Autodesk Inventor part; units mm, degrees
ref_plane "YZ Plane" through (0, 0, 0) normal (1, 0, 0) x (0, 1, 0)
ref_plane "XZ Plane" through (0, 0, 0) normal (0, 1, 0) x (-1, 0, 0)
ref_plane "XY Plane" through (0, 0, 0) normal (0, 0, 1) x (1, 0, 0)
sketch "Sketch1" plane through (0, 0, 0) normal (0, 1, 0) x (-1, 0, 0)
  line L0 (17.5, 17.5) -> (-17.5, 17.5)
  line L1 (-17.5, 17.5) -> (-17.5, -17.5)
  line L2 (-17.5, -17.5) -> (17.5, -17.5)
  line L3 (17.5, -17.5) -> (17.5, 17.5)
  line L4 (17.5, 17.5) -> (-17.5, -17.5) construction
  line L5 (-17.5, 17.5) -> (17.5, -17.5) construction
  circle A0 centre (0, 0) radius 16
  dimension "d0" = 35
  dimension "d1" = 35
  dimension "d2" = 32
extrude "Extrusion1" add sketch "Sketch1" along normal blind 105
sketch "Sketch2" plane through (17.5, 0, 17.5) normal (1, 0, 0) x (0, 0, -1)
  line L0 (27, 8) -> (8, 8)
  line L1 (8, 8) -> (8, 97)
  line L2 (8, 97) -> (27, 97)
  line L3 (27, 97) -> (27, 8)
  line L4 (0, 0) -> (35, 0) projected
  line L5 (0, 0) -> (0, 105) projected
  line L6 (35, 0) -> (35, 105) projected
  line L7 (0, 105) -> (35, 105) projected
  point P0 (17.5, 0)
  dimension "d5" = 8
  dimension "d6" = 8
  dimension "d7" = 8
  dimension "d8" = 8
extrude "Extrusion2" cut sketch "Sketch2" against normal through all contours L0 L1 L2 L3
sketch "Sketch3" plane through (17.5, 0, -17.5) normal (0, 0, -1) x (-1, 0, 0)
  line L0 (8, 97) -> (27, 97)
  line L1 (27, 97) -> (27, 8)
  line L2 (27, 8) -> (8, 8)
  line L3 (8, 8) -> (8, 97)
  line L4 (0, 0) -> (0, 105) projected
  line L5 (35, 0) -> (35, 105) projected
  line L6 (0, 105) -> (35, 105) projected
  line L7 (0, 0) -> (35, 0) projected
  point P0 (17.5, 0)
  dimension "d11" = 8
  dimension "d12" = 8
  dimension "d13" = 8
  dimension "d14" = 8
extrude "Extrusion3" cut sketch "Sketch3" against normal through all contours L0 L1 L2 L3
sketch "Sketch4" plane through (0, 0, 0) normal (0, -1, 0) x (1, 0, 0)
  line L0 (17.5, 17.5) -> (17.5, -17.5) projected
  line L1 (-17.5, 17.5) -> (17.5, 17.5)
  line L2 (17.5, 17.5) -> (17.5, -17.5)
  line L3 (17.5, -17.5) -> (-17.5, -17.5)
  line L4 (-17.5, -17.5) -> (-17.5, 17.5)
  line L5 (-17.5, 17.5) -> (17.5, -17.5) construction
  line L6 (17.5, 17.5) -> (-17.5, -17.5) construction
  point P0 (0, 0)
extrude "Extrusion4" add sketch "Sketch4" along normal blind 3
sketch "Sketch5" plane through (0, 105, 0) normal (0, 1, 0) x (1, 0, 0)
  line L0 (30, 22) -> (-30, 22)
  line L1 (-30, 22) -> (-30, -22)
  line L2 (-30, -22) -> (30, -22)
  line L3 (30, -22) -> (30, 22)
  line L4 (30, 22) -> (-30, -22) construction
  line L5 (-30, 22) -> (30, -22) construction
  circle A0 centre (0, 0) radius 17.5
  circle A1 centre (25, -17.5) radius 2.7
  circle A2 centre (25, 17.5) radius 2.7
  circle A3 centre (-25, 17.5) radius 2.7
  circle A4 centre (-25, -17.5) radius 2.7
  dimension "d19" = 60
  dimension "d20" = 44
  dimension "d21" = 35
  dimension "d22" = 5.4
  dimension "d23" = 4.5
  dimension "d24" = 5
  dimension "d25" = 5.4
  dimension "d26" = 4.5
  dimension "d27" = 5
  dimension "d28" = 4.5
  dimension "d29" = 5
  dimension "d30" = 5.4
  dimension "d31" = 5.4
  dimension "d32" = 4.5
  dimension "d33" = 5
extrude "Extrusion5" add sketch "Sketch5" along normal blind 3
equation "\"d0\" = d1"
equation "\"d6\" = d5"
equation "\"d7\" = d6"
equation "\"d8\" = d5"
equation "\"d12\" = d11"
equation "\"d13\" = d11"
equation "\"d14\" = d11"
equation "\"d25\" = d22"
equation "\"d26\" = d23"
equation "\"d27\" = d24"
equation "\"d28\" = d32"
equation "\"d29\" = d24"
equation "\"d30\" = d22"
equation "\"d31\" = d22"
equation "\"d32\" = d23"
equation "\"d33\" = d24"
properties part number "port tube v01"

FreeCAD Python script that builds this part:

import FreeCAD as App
import Part
import Sketcher

doc = App.newDocument("Part")
body = doc.addObject("PartDesign::Body", "Body")

sketch1 = body.newObject("Sketcher::SketchObject", "Sketch")
sketch1.AttachmentSupport = (doc.getObject("XZ_Plane"), [""])
sketch1.MapMode = "FlatFace"
sketch1.addGeometry([
    Part.LineSegment(App.Vector(-18, -18, 0), App.Vector(-18, 18, 0)),
    Part.LineSegment(App.Vector(-18, 18, 0), App.Vector(18, 18, 0)),
    Part.LineSegment(App.Vector(18, 18, 0), App.Vector(18, -18, 0)),
    Part.LineSegment(App.Vector(18, -18, 0), App.Vector(-18, -18, 0)),
    Part.Circle(App.Vector(0, 0, 0), App.Vector(0, 0, 1), 16),
], False)
sketch1.addConstraint([
    Sketcher.Constraint("Coincident", 0, 2, 1, 1),
    Sketcher.Constraint("Coincident", 1, 2, 2, 1),
    Sketcher.Constraint("Coincident", 2, 2, 3, 1),
    Sketcher.Constraint("Coincident", 3, 2, 0, 1),
    Sketcher.Constraint("Vertical", 0),
    Sketcher.Constraint("Horizontal", 1),
    Sketcher.Constraint("Vertical", 2),
    Sketcher.Constraint("Horizontal", 3),
    Sketcher.Constraint("Coincident", 4, 3, -1, 1),
    Sketcher.Constraint("Symmetric", 0, 2, 2, 2, -1, 1),
    Sketcher.Constraint("Equal", 3, 0),
    Sketcher.Constraint("Diameter", 4, 32.0),
    Sketcher.Constraint("DistanceX", 1, 1, 1, 2, 35.0),
])
pad1 = body.newObject("PartDesign::Pad", "Pad")
pad1.Profile = sketch1
pad1.Length = 105
pad1.Reversed = True

sketch2 = body.newObject("Sketcher::SketchObject", "Sketch001")
sketch2.AttachmentSupport = (doc.getObject("YZ_Plane"), [""])
sketch2.MapMode = "FlatFace"
sketch2.AttachmentOffset = App.Placement(App.Vector(0, 0, 17.5), App.Rotation())
sketch2.addGeometry([
    Part.LineSegment(App.Vector(8, 10, 0), App.Vector(8, -10, 0)),
    Part.LineSegment(App.Vector(8, -10, 0), App.Vector(97, -10, 0)),
    Part.LineSegment(App.Vector(97, -10, 0), App.Vector(97, 10, 0)),
    Part.LineSegment(App.Vector(97, 10, 0), App.Vector(8, 10, 0)),
], False)
sketch2.addConstraint([
    Sketcher.Constraint("Coincident", 0, 2, 1, 1),
    Sketcher.Constraint("Coincident", 1, 2, 2, 1),
    Sketcher.Constraint("Coincident", 2, 2, 3, 1),
    Sketcher.Constraint("Coincident", 3, 2, 0, 1),
    Sketcher.Constraint("Vertical", 0),
    Sketcher.Constraint("Horizontal", 1),
    Sketcher.Constraint("Vertical", 2),
    Sketcher.Constraint("Horizontal", 3),
    Sketcher.Constraint("DistanceX", -1, 1, 0, 2, 8.0),
    Sketcher.Constraint("DistanceX", 1, 1, 1, 2, 89.0),
    Sketcher.Constraint("DistanceY", 0, 2, 0, 1, 19.0),
    Sketcher.Constraint("DistanceY", 0, 2, -1, 1, 9.5),
])
pocket1 = body.newObject("PartDesign::Pocket", "Pocket")
pocket1.Profile = sketch2
pocket1.Type = "ThroughAll"

sketch3 = body.newObject("Sketcher::SketchObject", "Sketch002")
sketch3.AttachmentSupport = (doc.getObject("XY_Plane"), [""])
sketch3.MapMode = "FlatFace"
sketch3.AttachmentOffset = App.Placement(App.Vector(0, 0, -17.5), App.Rotation())
sketch3.addGeometry([
    Part.LineSegment(App.Vector(-10, 97, 0), App.Vector(10, 97, 0)),
    Part.LineSegment(App.Vector(10, 97, 0), App.Vector(10, 8, 0)),
    Part.LineSegment(App.Vector(10, 8, 0), App.Vector(-10, 8, 0)),
    Part.LineSegment(App.Vector(-10, 8, 0), App.Vector(-10, 97, 0)),
], False)
sketch3.addConstraint([
    Sketcher.Constraint("Coincident", 0, 2, 1, 1),
    Sketcher.Constraint("Coincident", 1, 2, 2, 1),
    Sketcher.Constraint("Coincident", 2, 2, 3, 1),
    Sketcher.Constraint("Coincident", 3, 2, 0, 1),
    Sketcher.Constraint("Horizontal", 0),
    Sketcher.Constraint("Vertical", 1),
    Sketcher.Constraint("Horizontal", 2),
    Sketcher.Constraint("Vertical", 3),
    Sketcher.Constraint("DistanceY", -1, 1, 1, 2, 8.0),
    Sketcher.Constraint("DistanceX", 0, 1, 0, 2, 19.0),
    Sketcher.Constraint("DistanceY", 1, 2, 1, 1, 89.0),
    Sketcher.Constraint("DistanceX", -1, 1, 0, 2, 9.5),
])
pocket2 = body.newObject("PartDesign::Pocket", "Pocket001")
pocket2.Profile = sketch3
pocket2.Type = "ThroughAll"
pocket2.Reversed = True

sketch4 = body.newObject("Sketcher::SketchObject", "Sketch003")
sketch4.AttachmentSupport = (doc.getObject("XZ_Plane"), [""])
sketch4.MapMode = "FlatFace"
sketch4.addGeometry([
    Part.LineSegment(App.Vector(18, -18, 0), App.Vector(18, 18, 0)),
    Part.LineSegment(App.Vector(18, 18, 0), App.Vector(-18, 18, 0)),
    Part.LineSegment(App.Vector(-18, 18, 0), App.Vector(-18, -18, 0)),
    Part.LineSegment(App.Vector(-18, -18, 0), App.Vector(18, -18, 0)),
], False)
sketch4.addConstraint([
    Sketcher.Constraint("Coincident", 0, 2, 1, 1),
    Sketcher.Constraint("Coincident", 1, 2, 2, 1),
    Sketcher.Constraint("Coincident", 2, 2, 3, 1),
    Sketcher.Constraint("Coincident", 3, 2, 0, 1),
    Sketcher.Constraint("Vertical", 0),
    Sketcher.Constraint("Horizontal", 1),
    Sketcher.Constraint("Vertical", 2),
    Sketcher.Constraint("Horizontal", 3),
    Sketcher.Constraint("Symmetric", 0, 2, 2, 2, -1, 1),
    Sketcher.Constraint("Equal", 3, 0),
    Sketcher.Constraint("DistanceX", 1, 2, 1, 1, 35.0),
])
pad2 = body.newObject("PartDesign::Pad", "Pad001")
pad2.Profile = sketch4
pad2.Length = 3

sketch5 = body.newObject("Sketcher::SketchObject", "Sketch004")
sketch5.AttachmentSupport = (doc.getObject("XZ_Plane"), [""])
sketch5.MapMode = "FlatFace"
sketch5.AttachmentOffset = App.Placement(App.Vector(0, 0, -105), App.Rotation())
sketch5.addGeometry([
    Part.LineSegment(App.Vector(30, 22, 0), App.Vector(30, -22, 0)),
    Part.LineSegment(App.Vector(30, -22, 0), App.Vector(-30, -22, 0)),
    Part.LineSegment(App.Vector(-30, -22, 0), App.Vector(-30, 22, 0)),
    Part.LineSegment(App.Vector(-30, 22, 0), App.Vector(30, 22, 0)),
    Part.Circle(App.Vector(-25, 17.5, 0), App.Vector(0, 0, 1), 2.7),
    Part.Circle(App.Vector(25, 17.5, 0), App.Vector(0, 0, 1), 2.7),
    Part.Circle(App.Vector(-25, -17.5, 0), App.Vector(0, 0, 1), 2.7),
    Part.Circle(App.Vector(0, 0, 0), App.Vector(0, 0, 1), 17.5),
    Part.Circle(App.Vector(25, -17.5, 0), App.Vector(0, 0, 1), 2.7),
], False)
sketch5.addConstraint([
    Sketcher.Constraint("Coincident", 0, 2, 1, 1),
    Sketcher.Constraint("Coincident", 1, 2, 2, 1),
    Sketcher.Constraint("Coincident", 2, 2, 3, 1),
    Sketcher.Constraint("Coincident", 3, 2, 0, 1),
    Sketcher.Constraint("Vertical", 0),
    Sketcher.Constraint("Horizontal", 1),
    Sketcher.Constraint("Vertical", 2),
    Sketcher.Constraint("Horizontal", 3),
    Sketcher.Constraint("Coincident", 7, 3, -1, 1),
    Sketcher.Constraint("Equal", 4, 5),
    Sketcher.Constraint("Equal", 5, 6),
    Sketcher.Constraint("Equal", 6, 8),
    Sketcher.Constraint("Symmetric", 5, 3, 6, 3, -1, 1),
    Sketcher.Constraint("Symmetric", 4, 3, 8, 3, -1, 1),
    Sketcher.Constraint("Symmetric", 0, 2, 2, 2, -1, 1),
    Sketcher.Constraint("Symmetric", 4, 3, 5, 3, -2),
    Sketcher.Constraint("Diameter", 7, 35.0),
    Sketcher.Constraint("Diameter", 4, 5.4),
    Sketcher.Constraint("DistanceX", 1, 2, 1, 1, 60.0),
    Sketcher.Constraint("DistanceY", 0, 2, 0, 1, 44.0),
    Sketcher.Constraint("DistanceY", 6, 3, 4, 3, 35.0),
    Sketcher.Constraint("DistanceX", 8, 3, 0, 2, 5.0),
])
pad3 = body.newObject("PartDesign::Pad", "Pad002")
pad3.Profile = sketch5
pad3.Length = 3
pad3.Reversed = True

doc.recompute()
